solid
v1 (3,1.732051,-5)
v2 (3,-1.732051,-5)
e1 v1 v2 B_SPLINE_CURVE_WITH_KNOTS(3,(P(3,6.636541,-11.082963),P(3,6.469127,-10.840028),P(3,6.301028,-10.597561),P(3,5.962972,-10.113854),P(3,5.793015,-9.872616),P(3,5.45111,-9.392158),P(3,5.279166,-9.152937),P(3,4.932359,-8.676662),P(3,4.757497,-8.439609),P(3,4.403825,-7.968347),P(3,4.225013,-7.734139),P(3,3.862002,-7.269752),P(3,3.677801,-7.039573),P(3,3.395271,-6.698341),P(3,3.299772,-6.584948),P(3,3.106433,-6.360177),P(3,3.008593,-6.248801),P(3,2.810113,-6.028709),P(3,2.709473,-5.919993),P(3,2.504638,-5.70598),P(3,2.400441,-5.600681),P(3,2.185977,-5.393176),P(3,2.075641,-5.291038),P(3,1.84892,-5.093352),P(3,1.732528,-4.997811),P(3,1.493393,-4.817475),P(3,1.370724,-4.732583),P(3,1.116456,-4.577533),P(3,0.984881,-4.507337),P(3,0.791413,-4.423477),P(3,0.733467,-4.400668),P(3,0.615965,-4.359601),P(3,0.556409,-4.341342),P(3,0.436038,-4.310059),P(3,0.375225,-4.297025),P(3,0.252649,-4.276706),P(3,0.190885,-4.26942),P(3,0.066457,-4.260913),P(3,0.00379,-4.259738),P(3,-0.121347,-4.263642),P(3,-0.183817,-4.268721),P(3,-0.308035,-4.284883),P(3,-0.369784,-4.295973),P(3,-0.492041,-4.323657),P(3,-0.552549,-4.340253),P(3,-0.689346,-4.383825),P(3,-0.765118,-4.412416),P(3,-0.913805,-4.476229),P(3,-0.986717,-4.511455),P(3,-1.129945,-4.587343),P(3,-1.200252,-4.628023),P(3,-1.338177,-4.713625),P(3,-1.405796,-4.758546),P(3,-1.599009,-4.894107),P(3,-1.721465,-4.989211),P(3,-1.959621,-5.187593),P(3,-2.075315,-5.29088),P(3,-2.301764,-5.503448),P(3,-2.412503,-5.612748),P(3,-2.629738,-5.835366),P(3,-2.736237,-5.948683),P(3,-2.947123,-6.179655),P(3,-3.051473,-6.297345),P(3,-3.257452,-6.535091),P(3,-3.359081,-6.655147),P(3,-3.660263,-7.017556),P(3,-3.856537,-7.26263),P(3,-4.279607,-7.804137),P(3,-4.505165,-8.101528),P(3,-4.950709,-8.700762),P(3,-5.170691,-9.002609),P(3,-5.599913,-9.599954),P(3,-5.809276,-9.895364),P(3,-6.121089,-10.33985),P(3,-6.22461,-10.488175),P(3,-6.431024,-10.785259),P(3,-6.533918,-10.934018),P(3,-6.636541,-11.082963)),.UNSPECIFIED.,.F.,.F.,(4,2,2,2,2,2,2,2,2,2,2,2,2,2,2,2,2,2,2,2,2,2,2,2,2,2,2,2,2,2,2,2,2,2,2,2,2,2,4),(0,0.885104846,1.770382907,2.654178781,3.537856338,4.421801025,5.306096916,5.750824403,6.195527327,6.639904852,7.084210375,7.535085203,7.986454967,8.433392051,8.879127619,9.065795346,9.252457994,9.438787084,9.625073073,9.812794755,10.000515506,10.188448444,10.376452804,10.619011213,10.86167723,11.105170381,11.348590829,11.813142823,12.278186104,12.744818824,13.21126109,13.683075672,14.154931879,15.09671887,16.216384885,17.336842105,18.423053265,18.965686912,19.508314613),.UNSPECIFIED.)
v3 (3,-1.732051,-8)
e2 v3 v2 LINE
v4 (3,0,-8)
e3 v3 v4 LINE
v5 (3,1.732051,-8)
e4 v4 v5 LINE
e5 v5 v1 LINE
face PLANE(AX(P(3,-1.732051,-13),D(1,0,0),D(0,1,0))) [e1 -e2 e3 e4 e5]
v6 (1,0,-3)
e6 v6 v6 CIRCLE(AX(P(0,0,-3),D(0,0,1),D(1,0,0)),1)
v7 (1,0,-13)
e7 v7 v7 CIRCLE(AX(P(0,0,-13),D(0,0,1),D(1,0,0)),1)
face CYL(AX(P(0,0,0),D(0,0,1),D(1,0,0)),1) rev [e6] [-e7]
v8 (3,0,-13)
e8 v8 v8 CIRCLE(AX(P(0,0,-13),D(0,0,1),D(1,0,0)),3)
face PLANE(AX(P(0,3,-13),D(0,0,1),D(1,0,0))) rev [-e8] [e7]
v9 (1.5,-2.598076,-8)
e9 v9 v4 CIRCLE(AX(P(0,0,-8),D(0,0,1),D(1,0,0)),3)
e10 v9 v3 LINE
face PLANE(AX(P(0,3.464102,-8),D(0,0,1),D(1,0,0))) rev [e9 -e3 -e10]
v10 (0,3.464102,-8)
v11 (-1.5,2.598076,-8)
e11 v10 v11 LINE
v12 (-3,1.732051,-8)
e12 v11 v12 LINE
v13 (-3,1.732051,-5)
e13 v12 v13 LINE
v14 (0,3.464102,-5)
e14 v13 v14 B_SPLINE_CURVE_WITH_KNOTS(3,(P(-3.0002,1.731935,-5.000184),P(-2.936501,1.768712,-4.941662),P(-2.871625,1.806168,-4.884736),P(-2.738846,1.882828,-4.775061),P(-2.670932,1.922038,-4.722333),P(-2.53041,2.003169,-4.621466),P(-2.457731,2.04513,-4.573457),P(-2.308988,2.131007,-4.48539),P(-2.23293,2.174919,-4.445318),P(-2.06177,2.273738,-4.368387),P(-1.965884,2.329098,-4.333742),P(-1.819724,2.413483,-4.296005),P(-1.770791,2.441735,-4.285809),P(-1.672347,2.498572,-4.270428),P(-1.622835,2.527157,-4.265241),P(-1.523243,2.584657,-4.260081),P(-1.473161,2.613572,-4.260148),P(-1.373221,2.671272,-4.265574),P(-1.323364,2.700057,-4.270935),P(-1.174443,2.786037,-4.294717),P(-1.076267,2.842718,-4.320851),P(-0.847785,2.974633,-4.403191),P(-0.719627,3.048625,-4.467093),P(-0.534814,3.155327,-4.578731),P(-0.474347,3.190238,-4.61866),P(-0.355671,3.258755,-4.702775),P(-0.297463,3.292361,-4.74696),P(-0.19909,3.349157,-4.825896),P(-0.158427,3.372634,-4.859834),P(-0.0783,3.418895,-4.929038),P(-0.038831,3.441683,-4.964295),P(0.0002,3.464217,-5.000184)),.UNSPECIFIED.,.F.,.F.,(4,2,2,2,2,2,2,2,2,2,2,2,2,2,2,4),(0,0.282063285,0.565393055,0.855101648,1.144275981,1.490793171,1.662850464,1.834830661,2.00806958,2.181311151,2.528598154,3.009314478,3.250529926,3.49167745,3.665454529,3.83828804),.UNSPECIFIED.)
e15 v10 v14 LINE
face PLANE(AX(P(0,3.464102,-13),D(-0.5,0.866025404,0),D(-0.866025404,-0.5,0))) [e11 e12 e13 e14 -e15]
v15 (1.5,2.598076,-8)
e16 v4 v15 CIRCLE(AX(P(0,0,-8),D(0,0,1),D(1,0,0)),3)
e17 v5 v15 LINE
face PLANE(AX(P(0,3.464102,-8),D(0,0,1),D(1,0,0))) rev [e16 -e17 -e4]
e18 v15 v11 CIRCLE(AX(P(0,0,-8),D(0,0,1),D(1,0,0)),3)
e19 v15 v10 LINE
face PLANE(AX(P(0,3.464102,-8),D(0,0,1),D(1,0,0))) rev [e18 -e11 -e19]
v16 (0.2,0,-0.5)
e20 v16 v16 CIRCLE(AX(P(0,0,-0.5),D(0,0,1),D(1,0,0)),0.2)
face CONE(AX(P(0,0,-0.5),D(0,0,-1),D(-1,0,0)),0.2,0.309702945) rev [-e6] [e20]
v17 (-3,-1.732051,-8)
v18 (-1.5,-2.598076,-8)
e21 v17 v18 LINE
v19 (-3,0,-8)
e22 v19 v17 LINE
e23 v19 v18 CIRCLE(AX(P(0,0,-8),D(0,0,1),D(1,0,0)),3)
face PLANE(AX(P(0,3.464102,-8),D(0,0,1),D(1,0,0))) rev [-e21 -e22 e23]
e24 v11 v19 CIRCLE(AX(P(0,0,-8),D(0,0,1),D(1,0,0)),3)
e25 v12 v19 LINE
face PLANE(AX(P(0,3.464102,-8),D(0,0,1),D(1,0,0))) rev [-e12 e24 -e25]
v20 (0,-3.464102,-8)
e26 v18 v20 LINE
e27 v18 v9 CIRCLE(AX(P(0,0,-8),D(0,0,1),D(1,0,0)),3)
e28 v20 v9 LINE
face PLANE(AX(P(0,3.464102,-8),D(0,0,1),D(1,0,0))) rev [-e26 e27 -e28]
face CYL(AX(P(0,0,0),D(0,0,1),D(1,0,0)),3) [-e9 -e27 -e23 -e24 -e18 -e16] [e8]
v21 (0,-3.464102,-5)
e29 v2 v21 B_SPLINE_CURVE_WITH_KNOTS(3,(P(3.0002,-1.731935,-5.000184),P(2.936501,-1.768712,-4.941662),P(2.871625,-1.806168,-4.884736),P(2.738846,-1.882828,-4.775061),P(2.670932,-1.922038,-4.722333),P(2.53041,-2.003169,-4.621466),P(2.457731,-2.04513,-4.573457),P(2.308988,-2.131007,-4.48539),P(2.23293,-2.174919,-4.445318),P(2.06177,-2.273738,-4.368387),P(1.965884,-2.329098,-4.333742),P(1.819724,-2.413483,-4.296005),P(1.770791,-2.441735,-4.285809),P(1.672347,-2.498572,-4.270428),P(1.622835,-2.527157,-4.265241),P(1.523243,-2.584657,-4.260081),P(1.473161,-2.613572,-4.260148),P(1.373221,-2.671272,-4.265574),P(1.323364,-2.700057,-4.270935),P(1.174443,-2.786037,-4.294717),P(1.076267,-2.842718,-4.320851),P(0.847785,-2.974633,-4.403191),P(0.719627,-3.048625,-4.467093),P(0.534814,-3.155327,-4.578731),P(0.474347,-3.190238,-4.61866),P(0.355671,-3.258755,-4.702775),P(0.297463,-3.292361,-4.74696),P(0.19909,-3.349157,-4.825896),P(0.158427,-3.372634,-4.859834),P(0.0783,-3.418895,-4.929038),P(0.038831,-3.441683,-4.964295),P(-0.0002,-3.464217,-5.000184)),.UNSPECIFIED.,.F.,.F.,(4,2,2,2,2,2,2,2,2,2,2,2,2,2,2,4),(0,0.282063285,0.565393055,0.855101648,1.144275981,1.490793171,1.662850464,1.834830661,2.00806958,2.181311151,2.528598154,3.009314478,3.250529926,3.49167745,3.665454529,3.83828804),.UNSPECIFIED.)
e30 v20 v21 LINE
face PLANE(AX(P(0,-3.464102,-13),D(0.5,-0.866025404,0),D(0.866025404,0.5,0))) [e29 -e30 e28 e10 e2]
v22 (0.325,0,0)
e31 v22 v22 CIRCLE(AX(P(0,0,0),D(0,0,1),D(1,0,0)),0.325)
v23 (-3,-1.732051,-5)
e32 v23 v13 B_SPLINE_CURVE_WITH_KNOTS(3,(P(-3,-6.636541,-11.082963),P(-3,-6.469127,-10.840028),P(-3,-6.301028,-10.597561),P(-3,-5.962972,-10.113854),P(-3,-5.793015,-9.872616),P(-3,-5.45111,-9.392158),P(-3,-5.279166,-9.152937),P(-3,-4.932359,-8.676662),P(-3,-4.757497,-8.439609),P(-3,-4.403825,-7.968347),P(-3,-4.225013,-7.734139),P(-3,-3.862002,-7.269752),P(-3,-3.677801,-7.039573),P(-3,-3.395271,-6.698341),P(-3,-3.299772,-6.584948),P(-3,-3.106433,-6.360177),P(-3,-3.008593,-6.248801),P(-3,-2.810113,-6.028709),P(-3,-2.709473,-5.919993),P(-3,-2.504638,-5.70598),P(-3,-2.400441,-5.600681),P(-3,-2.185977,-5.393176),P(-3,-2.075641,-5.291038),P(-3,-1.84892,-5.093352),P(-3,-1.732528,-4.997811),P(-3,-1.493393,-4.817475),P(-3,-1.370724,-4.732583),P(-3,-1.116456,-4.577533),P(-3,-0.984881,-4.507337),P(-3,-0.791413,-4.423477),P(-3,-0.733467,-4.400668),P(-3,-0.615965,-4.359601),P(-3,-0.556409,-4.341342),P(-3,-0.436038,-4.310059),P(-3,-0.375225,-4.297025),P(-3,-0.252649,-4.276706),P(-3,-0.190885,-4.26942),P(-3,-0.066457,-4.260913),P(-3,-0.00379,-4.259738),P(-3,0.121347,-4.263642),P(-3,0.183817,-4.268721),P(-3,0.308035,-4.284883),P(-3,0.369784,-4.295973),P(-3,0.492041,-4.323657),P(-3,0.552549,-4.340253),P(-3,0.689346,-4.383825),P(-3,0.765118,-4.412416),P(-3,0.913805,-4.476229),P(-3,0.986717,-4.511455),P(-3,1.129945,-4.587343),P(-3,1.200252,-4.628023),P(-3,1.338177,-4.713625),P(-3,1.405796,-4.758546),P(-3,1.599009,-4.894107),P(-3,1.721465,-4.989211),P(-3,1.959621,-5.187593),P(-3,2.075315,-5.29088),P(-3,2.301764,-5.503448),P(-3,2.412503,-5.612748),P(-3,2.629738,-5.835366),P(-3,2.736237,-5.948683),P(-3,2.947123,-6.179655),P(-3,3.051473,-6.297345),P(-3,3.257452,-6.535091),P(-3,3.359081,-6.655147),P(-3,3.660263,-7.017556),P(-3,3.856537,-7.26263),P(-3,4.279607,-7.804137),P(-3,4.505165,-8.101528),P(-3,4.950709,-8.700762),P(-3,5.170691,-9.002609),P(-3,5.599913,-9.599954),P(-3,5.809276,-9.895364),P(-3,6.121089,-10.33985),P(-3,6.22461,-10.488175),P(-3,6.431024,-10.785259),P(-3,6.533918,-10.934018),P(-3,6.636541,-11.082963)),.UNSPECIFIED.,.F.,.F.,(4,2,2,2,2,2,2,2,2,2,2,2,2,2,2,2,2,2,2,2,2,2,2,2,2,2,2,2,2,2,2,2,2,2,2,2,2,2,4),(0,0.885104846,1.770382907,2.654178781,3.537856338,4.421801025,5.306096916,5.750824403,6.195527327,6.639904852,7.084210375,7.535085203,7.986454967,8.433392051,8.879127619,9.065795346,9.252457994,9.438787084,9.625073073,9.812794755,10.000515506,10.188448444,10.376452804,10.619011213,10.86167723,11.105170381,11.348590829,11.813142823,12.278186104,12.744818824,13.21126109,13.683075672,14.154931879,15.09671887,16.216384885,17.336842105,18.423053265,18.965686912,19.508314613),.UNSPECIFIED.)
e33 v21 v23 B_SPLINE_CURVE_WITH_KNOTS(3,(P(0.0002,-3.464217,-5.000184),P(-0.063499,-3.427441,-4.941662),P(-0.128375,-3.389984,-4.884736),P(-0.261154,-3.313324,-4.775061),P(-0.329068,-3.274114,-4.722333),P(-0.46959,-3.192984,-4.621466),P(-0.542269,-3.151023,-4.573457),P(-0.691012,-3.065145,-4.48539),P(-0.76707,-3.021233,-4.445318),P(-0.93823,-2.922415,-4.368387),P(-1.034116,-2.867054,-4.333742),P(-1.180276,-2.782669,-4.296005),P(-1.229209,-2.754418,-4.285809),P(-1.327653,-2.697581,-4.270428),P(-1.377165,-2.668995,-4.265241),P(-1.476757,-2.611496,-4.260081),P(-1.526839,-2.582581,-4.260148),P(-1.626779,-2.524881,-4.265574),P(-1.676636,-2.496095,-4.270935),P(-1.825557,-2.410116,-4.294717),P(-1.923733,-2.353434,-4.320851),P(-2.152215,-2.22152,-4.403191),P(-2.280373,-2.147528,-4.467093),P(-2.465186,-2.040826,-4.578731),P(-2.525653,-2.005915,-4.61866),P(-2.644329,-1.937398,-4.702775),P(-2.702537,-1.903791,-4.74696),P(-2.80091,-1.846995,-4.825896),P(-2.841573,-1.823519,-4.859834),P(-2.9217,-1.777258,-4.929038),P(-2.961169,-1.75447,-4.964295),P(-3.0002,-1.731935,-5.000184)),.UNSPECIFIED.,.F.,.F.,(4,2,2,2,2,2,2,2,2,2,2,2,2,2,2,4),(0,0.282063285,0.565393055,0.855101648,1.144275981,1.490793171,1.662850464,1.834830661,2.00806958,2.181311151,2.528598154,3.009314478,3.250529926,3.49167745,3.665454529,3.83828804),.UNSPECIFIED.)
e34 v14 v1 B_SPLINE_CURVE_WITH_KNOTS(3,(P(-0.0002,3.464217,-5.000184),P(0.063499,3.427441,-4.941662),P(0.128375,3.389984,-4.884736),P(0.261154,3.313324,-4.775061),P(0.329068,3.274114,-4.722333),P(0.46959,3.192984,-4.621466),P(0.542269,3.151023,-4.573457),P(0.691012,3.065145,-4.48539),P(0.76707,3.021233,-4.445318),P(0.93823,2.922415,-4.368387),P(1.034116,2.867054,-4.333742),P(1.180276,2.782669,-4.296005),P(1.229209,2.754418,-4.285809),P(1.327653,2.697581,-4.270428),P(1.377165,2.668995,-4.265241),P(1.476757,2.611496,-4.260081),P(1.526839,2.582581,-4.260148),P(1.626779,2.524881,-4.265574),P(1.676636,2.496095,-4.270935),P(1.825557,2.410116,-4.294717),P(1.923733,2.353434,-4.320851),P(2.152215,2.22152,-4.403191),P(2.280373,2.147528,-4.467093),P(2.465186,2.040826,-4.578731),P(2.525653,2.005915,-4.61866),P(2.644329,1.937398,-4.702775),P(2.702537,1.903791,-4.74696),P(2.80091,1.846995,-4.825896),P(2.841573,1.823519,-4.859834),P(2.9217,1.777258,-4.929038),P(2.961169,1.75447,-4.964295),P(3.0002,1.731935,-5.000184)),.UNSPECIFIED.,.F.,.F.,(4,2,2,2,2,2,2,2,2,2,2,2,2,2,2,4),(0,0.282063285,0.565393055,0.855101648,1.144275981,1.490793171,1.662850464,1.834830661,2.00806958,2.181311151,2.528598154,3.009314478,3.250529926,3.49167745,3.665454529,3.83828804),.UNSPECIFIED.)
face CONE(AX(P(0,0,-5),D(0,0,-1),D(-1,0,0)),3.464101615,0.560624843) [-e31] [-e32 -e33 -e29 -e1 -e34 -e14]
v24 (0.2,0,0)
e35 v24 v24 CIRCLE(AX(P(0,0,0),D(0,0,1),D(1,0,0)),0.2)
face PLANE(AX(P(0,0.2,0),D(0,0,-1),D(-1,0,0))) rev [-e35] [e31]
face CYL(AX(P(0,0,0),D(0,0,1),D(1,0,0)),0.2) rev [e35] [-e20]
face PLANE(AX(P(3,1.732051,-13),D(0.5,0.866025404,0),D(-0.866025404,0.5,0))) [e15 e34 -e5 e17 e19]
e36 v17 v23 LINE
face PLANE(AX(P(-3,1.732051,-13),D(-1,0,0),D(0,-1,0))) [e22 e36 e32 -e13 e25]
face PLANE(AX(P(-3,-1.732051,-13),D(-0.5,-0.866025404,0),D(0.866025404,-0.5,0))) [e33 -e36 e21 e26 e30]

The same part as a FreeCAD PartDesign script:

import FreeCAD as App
import Part
import Sketcher
Q = App.Units.Quantity

doc = App.newDocument("Part")
body = doc.addObject("PartDesign::Body", "Body")

# Sketch on YZ plane
sketch1 = doc.addObject("Sketcher::SketchObject", "Sketch")
body.addObject(sketch1)
sketch1.AttachmentSupport = (doc.YZ_Plane, [""])
sketch1.MapMode = "FlatFace"
sketch1.addGeometry(Part.LineSegment(App.Vector(0.33, 0, 0), App.Vector(0.2, 0, 0)), False)
sketch1.addGeometry(Part.LineSegment(App.Vector(0.2, 0, 0), App.Vector(0.2, -0.5, 0)), False)
sketch1.addGeometry(Part.LineSegment(App.Vector(0.2, -0.5, 0), App.Vector(1, -3, 0)), False)
sketch1.addGeometry(Part.LineSegment(App.Vector(1, -3, 0), App.Vector(1, -13, 0)), False)
sketch1.addGeometry(Part.LineSegment(App.Vector(1, -13, 0), App.Vector(3, -13, 0)), False)
sketch1.addGeometry(Part.LineSegment(App.Vector(3, -13, 0), App.Vector(3, -8, 0)), False)
sketch1.addGeometry(Part.LineSegment(App.Vector(3, -8, 0), App.Vector(3.46, -8, 0)), False)
sketch1.addGeometry(Part.LineSegment(App.Vector(3.46, -8, 0), App.Vector(3.46, -5, 0)), False)
sketch1.addGeometry(Part.LineSegment(App.Vector(3.46, -5, 0), App.Vector(0.33, 0, 0)), False)
sketch1.addConstraint(Sketcher.Constraint("Coincident", 0, 2, 1, 1))
sketch1.addConstraint(Sketcher.Constraint("Coincident", 1, 2, 2, 1))
sketch1.addConstraint(Sketcher.Constraint("Coincident", 2, 2, 3, 1))
sketch1.addConstraint(Sketcher.Constraint("Coincident", 3, 2, 4, 1))
sketch1.addConstraint(Sketcher.Constraint("Coincident", 4, 2, 5, 1))
sketch1.addConstraint(Sketcher.Constraint("Coincident", 5, 2, 6, 1))
sketch1.addConstraint(Sketcher.Constraint("Coincident", 6, 2, 7, 1))
sketch1.addConstraint(Sketcher.Constraint("Coincident", 7, 2, 8, 1))
sketch1.addConstraint(Sketcher.Constraint("Coincident", 8, 2, 0, 1))
sketch1.addConstraint(Sketcher.Constraint("Horizontal", 0))
sketch1.addConstraint(Sketcher.Constraint("Vertical", 1))
sketch1.addConstraint(Sketcher.Constraint("Vertical", 3))
sketch1.addConstraint(Sketcher.Constraint("Horizontal", 4))
sketch1.addConstraint(Sketcher.Constraint("Vertical", 5))
sketch1.addConstraint(Sketcher.Constraint("Horizontal", 6))
sketch1.addConstraint(Sketcher.Constraint("Vertical", 7))
sketch1.addConstraint(Sketcher.Constraint("PointOnObject", 0, 2, -1))
sketch1.addConstraint(Sketcher.Constraint("DistanceX", 4, 1, 4, 2, Q("2 mm")))
sketch1.addConstraint(Sketcher.Constraint("DistanceY", 3, 2, 3, 1, Q("10 mm")))
sketch1.addConstraint(Sketcher.Constraint("DistanceY", 5, 1, 5, 2, Q("5 mm")))
sketch1.addConstraint(Sketcher.Constraint("DistanceY", 7, 1, 7, 2, Q("3 mm")))
sketch1.addConstraint(Sketcher.Constraint("DistanceY", 1, 2, 1, 1, Q("0.5 mm")))
sketch1.addConstraint(Sketcher.Constraint("DistanceX", -1, 1, 2, 2, Q("1 mm")))
sketch1.addConstraint(Sketcher.Constraint("DistanceY", 2, 2, -1, 1, Q("3 mm")))
sketch1.addConstraint(Sketcher.Constraint("DistanceX", -1, 1, 0, 2, Q("0.2 mm")))
sketch1.addConstraint(Sketcher.Constraint("DistanceX", 0, 2, 0, 1, Q("0.125 mm")))
sketch1.addConstraint(Sketcher.Constraint("DistanceX", 6, 1, 6, 2, Q("0.464102 mm")))
revolution = doc.addObject("PartDesign::Revolution", "Revolution")
body.addObject(revolution)
revolution.Profile = sketch1
revolution.ReferenceAxis = (sketch1, ["V_Axis"])
revolution.Angle = 360

# Sketch on XY plane
sketch2 = doc.addObject("Sketcher::SketchObject", "Sketch001")
body.addObject(sketch2)
sketch2.AttachmentSupport = (doc.XY_Plane, [""])
sketch2.MapMode = "FlatFace"
sketch2.addGeometry(Part.LineSegment(App.Vector(-6.1, 6.1, 0), App.Vector(-6.1, -6.1, 0)), False)
sketch2.addGeometry(Part.LineSegment(App.Vector(-6.1, -6.1, 0), App.Vector(6.1, -6.1, 0)), False)
sketch2.addGeometry(Part.LineSegment(App.Vector(6.1, -6.1, 0), App.Vector(6.1, 6.1, 0)), False)
sketch2.addGeometry(Part.LineSegment(App.Vector(6.1, 6.1, 0), App.Vector(-6.1, 6.1, 0)), False)
sketch2.addGeometry(Part.LineSegment(App.Vector(-3, 1.7, 0), App.Vector(0, 3.5, 0)), False)
sketch2.addGeometry(Part.LineSegment(App.Vector(0, 3.5, 0), App.Vector(3, 1.7, 0)), False)
sketch2.addGeometry(Part.LineSegment(App.Vector(3, 1.7, 0), App.Vector(3, -1.7, 0)), False)
sketch2.addGeometry(Part.LineSegment(App.Vector(3, -1.7, 0), App.Vector(0, -3.5, 0)), False)
sketch2.addGeometry(Part.LineSegment(App.Vector(0, -3.5, 0), App.Vector(-3, -1.7, 0)), False)
sketch2.addGeometry(Part.LineSegment(App.Vector(-3, -1.7, 0), App.Vector(-3, 1.7, 0)), False)
sketch2.addConstraint(Sketcher.Constraint("Coincident", 0, 2, 1, 1))
sketch2.addConstraint(Sketcher.Constraint("Coincident", 1, 2, 2, 1))
sketch2.addConstraint(Sketcher.Constraint("Coincident", 2, 2, 3, 1))
sketch2.addConstraint(Sketcher.Constraint("Coincident", 3, 2, 0, 1))
sketch2.addConstraint(Sketcher.Constraint("Coincident", 4, 2, 5, 1))
sketch2.addConstraint(Sketcher.Constraint("Coincident", 5, 2, 6, 1))
sketch2.addConstraint(Sketcher.Constraint("Coincident", 6, 2, 7, 1))
sketch2.addConstraint(Sketcher.Constraint("Coincident", 7, 2, 8, 1))
sketch2.addConstraint(Sketcher.Constraint("Coincident", 8, 2, 9, 1))
sketch2.addConstraint(Sketcher.Constraint("Coincident", 9, 2, 4, 1))
sketch2.addConstraint(Sketcher.Constraint("Vertical", 0))
sketch2.addConstraint(Sketcher.Constraint("Horizontal", 1))
sketch2.addConstraint(Sketcher.Constraint("Vertical", 2))
sketch2.addConstraint(Sketcher.Constraint("Horizontal", 3))
sketch2.addConstraint(Sketcher.Constraint("Vertical", 6))
sketch2.addConstraint(Sketcher.Constraint("Vertical", 9))
sketch2.addConstraint(Sketcher.Constraint("Symmetric", 0, 2, 2, 2, -1, 1))
sketch2.addConstraint(Sketcher.Constraint("Symmetric", 4, 2, 7, 2, -1, 1))
sketch2.addConstraint(Sketcher.Constraint("Symmetric", 5, 2, 8, 2, -1, 1))
sketch2.addConstraint(Sketcher.Constraint("PointOnObject", 4, 2, -2))
sketch2.addConstraint(Sketcher.Constraint("Parallel", 4, 7))
sketch2.addConstraint(Sketcher.Constraint("Horizontal", 6, 2, 8, 2))
sketch2.addConstraint(Sketcher.Constraint("Equal", 3, 0))
sketch2.addConstraint(Sketcher.Constraint("Angle", 4, Q("30 deg")))
sketch2.addConstraint(Sketcher.Constraint("DistanceX", -1, 1, 5, 2, Q("3 mm")))
sketch2.addConstraint(Sketcher.Constraint("DistanceX", 1, 1, 1, 2, Q("12.184 mm")))
sketch2.addConstraint(Sketcher.Constraint("DistanceY", 6, 2, 6, 1, Q("3.464102 mm")))
pocket1 = doc.addObject("PartDesign::Pocket", "Pocket")
body.addObject(pocket1)
pocket1.Profile = sketch2
pocket1.Type = "ThroughAll"

doc.recompute()
